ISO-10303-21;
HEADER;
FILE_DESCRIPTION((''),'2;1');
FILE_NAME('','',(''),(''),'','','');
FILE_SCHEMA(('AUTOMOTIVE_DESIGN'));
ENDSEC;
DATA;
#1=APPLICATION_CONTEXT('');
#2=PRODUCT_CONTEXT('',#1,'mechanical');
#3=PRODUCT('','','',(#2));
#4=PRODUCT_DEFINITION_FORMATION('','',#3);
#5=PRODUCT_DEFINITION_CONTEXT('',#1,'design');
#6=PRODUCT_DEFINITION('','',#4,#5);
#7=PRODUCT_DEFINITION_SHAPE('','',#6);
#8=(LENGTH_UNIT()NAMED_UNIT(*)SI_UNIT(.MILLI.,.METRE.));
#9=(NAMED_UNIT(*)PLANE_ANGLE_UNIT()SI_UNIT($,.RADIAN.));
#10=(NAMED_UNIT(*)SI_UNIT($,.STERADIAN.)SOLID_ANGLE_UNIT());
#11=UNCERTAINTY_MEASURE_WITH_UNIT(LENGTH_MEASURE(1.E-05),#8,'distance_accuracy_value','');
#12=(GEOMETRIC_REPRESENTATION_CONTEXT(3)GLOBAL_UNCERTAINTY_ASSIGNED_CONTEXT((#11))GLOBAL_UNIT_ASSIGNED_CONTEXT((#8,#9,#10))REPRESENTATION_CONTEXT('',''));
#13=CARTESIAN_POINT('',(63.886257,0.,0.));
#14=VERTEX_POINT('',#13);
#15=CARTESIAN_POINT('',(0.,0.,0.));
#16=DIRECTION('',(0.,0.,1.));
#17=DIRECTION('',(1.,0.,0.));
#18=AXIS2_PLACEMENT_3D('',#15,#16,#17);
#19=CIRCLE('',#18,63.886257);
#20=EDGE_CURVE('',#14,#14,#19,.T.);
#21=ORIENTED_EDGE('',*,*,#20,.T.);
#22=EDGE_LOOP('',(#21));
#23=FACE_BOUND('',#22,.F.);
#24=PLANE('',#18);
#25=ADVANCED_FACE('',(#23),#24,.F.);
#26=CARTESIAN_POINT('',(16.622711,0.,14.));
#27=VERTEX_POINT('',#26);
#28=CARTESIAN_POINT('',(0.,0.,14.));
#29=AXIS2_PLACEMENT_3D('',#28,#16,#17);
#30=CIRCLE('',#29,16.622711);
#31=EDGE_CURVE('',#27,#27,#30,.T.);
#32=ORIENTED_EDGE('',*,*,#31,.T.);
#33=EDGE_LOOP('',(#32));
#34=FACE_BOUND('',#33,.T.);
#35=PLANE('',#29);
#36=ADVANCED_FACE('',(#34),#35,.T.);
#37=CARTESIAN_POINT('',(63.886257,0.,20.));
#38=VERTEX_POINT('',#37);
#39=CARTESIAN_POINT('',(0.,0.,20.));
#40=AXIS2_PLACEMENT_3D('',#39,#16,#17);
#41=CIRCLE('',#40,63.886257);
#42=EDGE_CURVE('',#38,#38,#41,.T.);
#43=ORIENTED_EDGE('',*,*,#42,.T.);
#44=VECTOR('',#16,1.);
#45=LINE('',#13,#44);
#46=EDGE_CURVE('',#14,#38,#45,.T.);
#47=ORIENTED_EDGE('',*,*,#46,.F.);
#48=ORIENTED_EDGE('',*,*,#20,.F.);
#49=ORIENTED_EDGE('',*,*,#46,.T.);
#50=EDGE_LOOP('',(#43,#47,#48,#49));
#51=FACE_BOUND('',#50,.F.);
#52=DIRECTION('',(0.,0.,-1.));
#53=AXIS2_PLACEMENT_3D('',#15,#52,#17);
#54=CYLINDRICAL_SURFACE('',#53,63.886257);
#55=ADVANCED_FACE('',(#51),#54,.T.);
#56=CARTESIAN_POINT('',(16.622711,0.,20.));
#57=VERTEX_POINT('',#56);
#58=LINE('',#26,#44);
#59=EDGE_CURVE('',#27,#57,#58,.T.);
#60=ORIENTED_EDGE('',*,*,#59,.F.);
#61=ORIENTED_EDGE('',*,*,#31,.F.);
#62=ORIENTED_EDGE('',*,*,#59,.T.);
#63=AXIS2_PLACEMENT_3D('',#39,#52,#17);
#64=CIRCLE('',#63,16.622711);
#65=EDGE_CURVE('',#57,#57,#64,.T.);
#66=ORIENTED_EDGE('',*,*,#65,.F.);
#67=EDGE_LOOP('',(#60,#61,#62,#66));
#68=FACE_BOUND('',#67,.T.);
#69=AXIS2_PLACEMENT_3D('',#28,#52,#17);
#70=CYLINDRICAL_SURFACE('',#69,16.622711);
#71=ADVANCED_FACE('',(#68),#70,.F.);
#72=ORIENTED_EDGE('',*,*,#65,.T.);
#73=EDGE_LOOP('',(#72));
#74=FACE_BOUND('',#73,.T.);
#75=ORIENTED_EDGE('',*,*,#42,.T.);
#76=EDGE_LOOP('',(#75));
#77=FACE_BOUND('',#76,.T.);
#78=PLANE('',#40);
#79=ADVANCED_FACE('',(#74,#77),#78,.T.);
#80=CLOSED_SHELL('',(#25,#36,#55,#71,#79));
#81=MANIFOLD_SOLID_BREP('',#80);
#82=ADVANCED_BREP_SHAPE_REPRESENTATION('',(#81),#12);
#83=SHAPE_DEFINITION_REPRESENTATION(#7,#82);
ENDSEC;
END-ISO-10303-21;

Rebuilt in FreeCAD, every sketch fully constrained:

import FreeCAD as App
import Part
import Sketcher
Q = App.Units.Quantity

doc = App.newDocument("Part")
params = doc.addObject("Spreadsheet::Sheet", "Params")
for row, (alias, value) in enumerate([
    ("pad1_length", "10 mm"),
    ("pad2_length", "20 mm"),
], start=1):
    params.set(f"A{row}", alias)
    params.set(f"B{row}", "=" + value)
    params.setAlias(f"B{row}", alias)

body = doc.addObject("PartDesign::Body", "Body")

# Sketch on XY plane
sketch1 = body.newObject("Sketcher::SketchObject", "Sketch")
sketch1.AttachmentSupport = (doc.getObject("XY_Plane"), [""])
sketch1.MapMode = "FlatFace"
sketch1.AttachmentOffset = App.Placement(App.Vector(0, 0, 14), App.Rotation())
sketch1.addGeometry(Part.Circle(App.Vector(0, 0, 0), App.Vector(0, 0, 1), 17), False)
sketch1.addConstraint(Sketcher.Constraint("Coincident", 0, 3, -1, 1))
sketch1.addConstraint(Sketcher.Constraint("Diameter", 0, Q("33.245422 mm")))
pad1 = body.newObject("PartDesign::Pad", "Pad")
pad1.Profile = sketch1
pad1.setExpression("Length", "Params.pad1_length")
body2 = doc.addObject("PartDesign::Body", "Body001")

# Sketch on XY plane
sketch2 = body2.newObject("Sketcher::SketchObject", "Sketch001")
sketch2.AttachmentSupport = (doc.getObject("XY_Plane001"), [""])
sketch2.MapMode = "FlatFace"
sketch2.addGeometry(Part.Circle(App.Vector(0, 0, 0), App.Vector(0, 0, 1), 64), False)
sketch2.addConstraint(Sketcher.Constraint("Coincident", 0, 3, -1, 1))
sketch2.addConstraint(Sketcher.Constraint("Diameter", 0, Q("127.772514 mm")))
pad2 = body2.newObject("PartDesign::Pad", "Pad001")
pad2.Profile = sketch2
pad2.setExpression("Length", "Params.pad2_length")
doc.recompute()

boolean = body2.newObject("PartDesign::Boolean", "Boolean")
boolean.Type = "Cut"
boolean.addObjects([body])

doc.recompute()
